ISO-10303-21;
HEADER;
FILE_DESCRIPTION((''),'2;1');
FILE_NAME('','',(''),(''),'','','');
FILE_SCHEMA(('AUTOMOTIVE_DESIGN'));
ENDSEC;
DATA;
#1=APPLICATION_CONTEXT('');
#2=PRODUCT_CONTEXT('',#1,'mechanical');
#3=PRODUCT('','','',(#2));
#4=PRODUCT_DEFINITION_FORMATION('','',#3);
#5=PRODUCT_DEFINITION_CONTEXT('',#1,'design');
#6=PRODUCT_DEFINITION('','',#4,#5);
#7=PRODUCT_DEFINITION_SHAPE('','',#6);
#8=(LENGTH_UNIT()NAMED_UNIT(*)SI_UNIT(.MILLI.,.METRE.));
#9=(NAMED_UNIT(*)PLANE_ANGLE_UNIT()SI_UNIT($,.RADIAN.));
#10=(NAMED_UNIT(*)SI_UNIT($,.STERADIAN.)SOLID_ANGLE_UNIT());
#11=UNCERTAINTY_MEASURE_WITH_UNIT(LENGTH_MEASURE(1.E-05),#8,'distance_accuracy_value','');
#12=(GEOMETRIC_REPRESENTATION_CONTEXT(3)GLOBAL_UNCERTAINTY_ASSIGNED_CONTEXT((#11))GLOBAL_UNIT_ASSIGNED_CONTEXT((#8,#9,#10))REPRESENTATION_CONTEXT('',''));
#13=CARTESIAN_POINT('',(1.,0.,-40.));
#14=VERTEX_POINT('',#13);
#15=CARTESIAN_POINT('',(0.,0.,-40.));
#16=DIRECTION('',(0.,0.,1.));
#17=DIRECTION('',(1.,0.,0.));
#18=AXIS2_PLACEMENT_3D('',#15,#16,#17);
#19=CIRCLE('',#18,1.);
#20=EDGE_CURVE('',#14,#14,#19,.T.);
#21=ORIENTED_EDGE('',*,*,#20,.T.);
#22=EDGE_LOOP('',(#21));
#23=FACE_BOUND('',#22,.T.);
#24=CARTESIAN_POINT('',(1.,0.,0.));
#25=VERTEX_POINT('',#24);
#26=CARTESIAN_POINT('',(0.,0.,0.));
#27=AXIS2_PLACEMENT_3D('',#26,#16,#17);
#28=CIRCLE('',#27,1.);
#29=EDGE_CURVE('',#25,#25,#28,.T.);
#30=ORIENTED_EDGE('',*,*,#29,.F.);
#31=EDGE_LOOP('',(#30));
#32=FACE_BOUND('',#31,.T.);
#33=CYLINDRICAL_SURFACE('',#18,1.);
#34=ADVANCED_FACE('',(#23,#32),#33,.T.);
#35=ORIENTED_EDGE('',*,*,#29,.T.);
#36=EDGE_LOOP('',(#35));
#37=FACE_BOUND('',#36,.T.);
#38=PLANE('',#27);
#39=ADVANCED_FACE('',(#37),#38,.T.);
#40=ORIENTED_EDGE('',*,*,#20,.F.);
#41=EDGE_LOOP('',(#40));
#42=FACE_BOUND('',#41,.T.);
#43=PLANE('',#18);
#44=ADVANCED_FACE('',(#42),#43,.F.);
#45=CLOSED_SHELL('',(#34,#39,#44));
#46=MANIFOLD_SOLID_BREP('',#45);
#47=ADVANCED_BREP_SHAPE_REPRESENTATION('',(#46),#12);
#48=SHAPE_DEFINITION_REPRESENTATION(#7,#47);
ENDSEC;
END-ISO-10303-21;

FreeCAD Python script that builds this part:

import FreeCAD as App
import Part
import Sketcher
Q = App.Units.Quantity

doc = App.newDocument("Part")
body = doc.addObject("PartDesign::Body", "Body")

sketch1 = body.newObject("Sketcher::SketchObject", "Sketch")
sketch1.AttachmentSupport = (doc.getObject("XY_Plane"), [""])
sketch1.MapMode = "FlatFace"
sketch1.addGeometry(Part.Circle(App.Vector(0, 0, 0), App.Vector(0, 0, 1), 1), False)
sketch1.addConstraint([
    Sketcher.Constraint("Coincident", 0, 3, -1, 1),
    Sketcher.Constraint("Diameter", 0, Q("2 mm")),
])
pad1 = body.newObject("PartDesign::Pad", "Pad")
pad1.Profile = sketch1
pad1.Length = 40
pad1.Reversed = True

doc.recompute()
